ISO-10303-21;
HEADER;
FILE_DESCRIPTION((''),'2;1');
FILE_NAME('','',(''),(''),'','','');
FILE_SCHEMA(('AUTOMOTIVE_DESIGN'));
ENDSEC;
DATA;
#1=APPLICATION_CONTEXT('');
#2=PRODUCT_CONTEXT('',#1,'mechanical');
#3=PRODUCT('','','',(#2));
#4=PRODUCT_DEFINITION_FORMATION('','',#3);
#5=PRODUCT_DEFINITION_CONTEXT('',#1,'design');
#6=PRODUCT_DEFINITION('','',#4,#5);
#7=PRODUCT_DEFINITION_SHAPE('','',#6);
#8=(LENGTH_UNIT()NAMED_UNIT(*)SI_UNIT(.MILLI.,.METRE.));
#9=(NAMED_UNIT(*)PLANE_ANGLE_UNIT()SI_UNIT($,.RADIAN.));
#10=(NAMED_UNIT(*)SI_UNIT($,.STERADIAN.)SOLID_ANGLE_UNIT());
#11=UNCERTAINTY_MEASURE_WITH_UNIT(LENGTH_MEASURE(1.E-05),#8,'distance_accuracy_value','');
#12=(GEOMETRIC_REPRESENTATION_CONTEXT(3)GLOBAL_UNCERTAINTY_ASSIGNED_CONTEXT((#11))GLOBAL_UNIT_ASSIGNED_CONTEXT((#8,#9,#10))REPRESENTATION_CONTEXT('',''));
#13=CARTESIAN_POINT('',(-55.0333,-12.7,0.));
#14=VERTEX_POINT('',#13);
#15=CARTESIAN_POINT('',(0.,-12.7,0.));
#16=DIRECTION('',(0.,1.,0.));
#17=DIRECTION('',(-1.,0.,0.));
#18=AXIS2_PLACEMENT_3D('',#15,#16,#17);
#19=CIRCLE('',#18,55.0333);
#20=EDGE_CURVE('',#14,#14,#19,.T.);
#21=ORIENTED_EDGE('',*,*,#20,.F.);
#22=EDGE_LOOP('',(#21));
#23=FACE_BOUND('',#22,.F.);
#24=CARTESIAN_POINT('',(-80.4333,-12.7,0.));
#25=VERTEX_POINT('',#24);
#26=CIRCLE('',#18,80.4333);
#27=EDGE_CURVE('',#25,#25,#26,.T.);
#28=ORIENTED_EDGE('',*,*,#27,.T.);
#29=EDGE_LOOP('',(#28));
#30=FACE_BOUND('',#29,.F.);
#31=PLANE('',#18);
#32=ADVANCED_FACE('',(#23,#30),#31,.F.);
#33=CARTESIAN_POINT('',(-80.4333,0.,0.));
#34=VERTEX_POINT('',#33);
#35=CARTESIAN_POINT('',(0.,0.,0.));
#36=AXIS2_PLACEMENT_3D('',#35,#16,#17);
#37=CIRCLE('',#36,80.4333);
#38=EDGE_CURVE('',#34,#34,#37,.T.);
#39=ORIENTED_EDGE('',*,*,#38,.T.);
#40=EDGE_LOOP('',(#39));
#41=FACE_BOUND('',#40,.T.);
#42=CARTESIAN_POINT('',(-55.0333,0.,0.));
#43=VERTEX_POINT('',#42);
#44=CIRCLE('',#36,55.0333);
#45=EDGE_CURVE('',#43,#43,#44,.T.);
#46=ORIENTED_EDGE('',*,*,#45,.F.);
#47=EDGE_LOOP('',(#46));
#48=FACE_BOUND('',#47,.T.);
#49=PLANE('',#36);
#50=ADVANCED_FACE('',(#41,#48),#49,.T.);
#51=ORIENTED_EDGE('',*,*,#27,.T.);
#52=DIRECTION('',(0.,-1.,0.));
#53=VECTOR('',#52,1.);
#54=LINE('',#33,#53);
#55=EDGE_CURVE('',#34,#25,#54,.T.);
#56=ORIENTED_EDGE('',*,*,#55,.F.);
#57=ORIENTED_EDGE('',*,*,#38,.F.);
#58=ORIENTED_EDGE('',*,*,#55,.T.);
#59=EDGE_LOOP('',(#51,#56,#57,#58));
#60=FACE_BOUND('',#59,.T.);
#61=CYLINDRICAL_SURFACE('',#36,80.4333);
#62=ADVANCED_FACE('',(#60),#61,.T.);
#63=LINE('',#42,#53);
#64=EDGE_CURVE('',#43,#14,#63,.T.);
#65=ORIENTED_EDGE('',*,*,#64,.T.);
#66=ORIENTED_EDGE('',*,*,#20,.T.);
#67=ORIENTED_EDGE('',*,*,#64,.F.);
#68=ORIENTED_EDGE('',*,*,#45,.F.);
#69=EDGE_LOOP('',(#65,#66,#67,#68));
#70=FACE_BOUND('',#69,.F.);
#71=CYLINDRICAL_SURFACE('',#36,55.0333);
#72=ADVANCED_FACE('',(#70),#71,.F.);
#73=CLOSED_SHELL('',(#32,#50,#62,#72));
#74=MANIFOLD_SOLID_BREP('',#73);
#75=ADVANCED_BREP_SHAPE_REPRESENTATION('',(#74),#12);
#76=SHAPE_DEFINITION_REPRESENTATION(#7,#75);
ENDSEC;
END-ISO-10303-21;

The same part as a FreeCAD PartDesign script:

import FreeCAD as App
import Part
import Sketcher
Q = App.Units.Quantity

doc = App.newDocument("Part")
body = doc.addObject("PartDesign::Body", "Body")

# Sketch on XZ plane
sketch1 = doc.addObject("Sketcher::SketchObject", "Sketch")
body.addObject(sketch1)
sketch1.AttachmentSupport = (doc.XZ_Plane, [""])
sketch1.MapMode = "FlatFace"
sketch1.addGeometry(Part.Circle(App.Vector(0, 0, 0), App.Vector(0, 0, 1), 80.4333), False)
sketch1.addGeometry(Part.Circle(App.Vector(0, 0, 0), App.Vector(0, 0, 1), 55.0333), False)
sketch1.addConstraint(Sketcher.Constraint("Coincident", 0, 3, -1, 1))
sketch1.addConstraint(Sketcher.Constraint("Coincident", 1, 3, -1, 1))
sketch1.addConstraint(Sketcher.Constraint("Diameter", 0, Q("160.8666 mm")))
sketch1.addConstraint(Sketcher.Constraint("Diameter", 1, Q("110.0666 mm")))
pad1 = doc.addObject("PartDesign::Pad", "Pad")
body.addObject(pad1)
pad1.Profile = sketch1
pad1.Length = Q("0.5 in")

doc.recompute()
